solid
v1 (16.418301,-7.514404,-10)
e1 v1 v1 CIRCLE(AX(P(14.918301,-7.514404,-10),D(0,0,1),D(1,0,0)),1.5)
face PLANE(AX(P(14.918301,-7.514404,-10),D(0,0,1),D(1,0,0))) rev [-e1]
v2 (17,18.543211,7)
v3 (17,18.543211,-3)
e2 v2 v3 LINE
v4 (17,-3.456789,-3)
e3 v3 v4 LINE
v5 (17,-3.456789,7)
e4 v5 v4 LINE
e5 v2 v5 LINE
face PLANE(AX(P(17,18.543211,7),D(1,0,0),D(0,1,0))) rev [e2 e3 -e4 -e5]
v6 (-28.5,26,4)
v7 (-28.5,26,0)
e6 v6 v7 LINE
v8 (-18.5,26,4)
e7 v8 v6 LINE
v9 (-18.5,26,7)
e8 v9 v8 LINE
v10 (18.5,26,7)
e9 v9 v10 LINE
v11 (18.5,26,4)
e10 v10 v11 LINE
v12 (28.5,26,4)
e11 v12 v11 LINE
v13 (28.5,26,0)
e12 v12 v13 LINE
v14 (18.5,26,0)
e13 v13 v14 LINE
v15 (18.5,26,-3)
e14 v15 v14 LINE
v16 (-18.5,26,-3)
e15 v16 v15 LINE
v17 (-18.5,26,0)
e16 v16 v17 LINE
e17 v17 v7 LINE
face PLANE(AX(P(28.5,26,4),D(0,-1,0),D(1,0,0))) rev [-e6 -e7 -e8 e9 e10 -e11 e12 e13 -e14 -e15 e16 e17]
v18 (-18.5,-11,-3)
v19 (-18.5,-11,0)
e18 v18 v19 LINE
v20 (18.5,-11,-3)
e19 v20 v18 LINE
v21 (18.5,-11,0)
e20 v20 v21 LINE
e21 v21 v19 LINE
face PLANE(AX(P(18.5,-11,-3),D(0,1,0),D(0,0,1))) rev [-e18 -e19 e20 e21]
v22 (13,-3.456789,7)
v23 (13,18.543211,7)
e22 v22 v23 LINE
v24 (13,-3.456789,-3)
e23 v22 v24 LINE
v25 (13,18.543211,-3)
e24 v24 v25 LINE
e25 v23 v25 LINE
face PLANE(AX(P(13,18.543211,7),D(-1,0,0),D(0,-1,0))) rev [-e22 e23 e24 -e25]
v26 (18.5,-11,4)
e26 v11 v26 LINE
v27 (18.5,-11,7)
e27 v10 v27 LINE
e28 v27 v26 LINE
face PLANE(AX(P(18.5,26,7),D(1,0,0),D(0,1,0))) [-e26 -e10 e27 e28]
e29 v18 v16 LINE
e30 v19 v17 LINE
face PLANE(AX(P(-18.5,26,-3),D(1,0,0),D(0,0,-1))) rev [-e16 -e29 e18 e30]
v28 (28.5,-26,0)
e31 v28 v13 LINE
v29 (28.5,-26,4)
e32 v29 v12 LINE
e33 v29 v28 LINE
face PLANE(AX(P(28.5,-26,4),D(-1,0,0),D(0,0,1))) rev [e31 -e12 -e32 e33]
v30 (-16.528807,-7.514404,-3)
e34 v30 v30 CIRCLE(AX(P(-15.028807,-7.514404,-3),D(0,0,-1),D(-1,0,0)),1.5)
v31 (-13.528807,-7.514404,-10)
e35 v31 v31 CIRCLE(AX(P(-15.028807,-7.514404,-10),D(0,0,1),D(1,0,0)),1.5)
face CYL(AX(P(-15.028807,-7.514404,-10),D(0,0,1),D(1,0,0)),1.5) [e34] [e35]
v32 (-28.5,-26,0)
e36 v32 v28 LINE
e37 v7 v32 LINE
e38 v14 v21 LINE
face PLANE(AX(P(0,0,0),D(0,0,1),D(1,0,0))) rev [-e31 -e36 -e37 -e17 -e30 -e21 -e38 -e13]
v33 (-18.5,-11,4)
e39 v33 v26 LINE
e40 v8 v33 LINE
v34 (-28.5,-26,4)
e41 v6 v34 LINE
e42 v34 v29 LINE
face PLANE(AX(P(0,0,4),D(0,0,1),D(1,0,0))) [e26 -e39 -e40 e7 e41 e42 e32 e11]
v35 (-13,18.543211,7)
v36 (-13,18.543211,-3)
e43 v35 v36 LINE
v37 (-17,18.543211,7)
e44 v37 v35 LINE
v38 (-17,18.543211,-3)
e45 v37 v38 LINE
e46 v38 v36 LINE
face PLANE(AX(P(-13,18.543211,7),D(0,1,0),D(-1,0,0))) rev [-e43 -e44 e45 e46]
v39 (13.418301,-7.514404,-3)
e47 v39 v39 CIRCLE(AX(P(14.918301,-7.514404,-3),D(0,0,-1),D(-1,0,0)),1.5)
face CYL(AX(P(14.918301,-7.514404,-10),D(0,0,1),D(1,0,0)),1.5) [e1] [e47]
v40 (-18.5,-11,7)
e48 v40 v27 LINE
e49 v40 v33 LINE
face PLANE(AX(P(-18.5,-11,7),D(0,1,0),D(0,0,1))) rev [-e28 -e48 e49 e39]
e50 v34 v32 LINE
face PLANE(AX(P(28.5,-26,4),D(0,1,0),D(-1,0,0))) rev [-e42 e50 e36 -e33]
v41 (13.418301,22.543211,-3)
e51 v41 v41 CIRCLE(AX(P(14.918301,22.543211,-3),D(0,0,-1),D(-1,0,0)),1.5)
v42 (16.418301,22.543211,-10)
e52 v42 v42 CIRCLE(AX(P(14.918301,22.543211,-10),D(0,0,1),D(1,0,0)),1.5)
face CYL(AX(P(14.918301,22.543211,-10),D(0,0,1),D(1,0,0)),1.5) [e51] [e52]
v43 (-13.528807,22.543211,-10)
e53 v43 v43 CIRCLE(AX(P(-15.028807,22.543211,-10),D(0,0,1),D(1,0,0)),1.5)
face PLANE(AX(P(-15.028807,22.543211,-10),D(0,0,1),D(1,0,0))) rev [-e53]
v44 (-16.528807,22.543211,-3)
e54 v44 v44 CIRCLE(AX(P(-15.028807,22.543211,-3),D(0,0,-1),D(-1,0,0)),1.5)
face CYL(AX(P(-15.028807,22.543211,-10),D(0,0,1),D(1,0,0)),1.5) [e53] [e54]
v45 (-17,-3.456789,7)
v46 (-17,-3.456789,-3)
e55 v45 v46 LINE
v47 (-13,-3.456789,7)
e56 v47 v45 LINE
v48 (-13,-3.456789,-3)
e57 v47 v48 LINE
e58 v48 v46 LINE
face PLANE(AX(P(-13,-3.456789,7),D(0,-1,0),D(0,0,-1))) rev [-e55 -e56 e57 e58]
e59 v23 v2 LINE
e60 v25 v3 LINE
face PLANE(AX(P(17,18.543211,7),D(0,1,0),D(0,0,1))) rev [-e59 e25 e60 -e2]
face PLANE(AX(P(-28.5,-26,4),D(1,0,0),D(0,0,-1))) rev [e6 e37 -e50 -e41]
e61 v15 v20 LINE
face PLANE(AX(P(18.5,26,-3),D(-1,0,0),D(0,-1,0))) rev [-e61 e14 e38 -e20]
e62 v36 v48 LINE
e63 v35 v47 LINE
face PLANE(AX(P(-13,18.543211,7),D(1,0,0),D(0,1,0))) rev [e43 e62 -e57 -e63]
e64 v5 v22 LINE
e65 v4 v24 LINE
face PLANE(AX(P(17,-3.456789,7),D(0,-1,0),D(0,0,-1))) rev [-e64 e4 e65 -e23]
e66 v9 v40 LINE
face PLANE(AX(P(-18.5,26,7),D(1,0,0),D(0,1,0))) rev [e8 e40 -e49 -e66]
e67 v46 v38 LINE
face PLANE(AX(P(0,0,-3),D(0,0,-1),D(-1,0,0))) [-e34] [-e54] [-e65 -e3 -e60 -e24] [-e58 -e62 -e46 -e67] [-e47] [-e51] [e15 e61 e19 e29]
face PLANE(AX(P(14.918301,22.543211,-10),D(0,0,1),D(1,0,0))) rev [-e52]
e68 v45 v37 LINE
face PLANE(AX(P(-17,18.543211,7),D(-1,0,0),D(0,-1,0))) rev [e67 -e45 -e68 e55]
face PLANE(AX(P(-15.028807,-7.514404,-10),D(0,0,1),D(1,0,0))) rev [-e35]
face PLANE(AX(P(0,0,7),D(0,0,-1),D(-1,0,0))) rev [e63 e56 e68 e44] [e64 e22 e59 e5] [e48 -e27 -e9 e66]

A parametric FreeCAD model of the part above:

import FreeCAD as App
import Part
import Sketcher
Q = App.Units.Quantity


def add_polygon(sketch, points):
    """Adds a closed chain of lines whose ends are joined by coincident constraints."""
    first, n = sketch.GeometryCount, len(points)
    for a, b in zip(points, points[1:] + points[:1]):
        sketch.addGeometry(Part.LineSegment(App.Vector(*a, 0), App.Vector(*b, 0)), False)
    for i in range(n):
        sketch.addConstraint(Sketcher.Constraint("Coincident", first + i, 2, first + (i + 1) % n, 1))

doc = App.newDocument("Part")
params = doc.addObject("Spreadsheet::Sheet", "Params")
for row, (alias, value) in enumerate([
    ("sketch1_width", "57 mm"),
    ("sketch1_height", "52 mm"),
    ("pad1_length", "4 mm"),
    ("sketch2_width", "37 mm"),
    ("pad2_length", "3 mm"),
    ("sketch3_width", "37 mm"),
    ("pad3_length", "3 mm"),
    ("sketch4_diameter", "3 mm"),
    ("pad4_length", "10 mm"),
    ("sketch5_diameter", "3 mm"),
    ("pad5_length", "10 mm"),
    ("sketch6_width", "4 mm"),
    ("sketch6_height", "22 mm"),
], start=1):
    params.set(f"A{row}", alias)
    params.set(f"B{row}", "=" + value)
    params.setAlias(f"B{row}", alias)

body = doc.addObject("PartDesign::Body", "Body")

# Sketch on XY plane
sketch1 = body.newObject("Sketcher::SketchObject", "Sketch")
sketch1.AttachmentSupport = (doc.getObject("XY_Plane"), [""])
sketch1.MapMode = "FlatFace"
add_polygon(sketch1, [(-28, 26), (-28, -26), (28, -26), (28, 26)])  # lines 0-3
sketch1.addConstraint(Sketcher.Constraint("Vertical", 0))
sketch1.addConstraint(Sketcher.Constraint("Horizontal", 1))
sketch1.addConstraint(Sketcher.Constraint("Vertical", 2))
sketch1.addConstraint(Sketcher.Constraint("Horizontal", 3))
sketch1.addConstraint(Sketcher.Constraint("Symmetric", 0, 2, 2, 2, -1, 1))
sketch1.addConstraint(Sketcher.Constraint("DistanceX", 1, 1, 1, 2, Q("57 mm")))
sketch1.addConstraint(Sketcher.Constraint("DistanceY", 0, 2, 0, 1, Q("52 mm")))
sketch1.setExpression("Constraints[9]", "Params.sketch1_width")
sketch1.setExpression("Constraints[10]", "Params.sketch1_height")
pad1 = body.newObject("PartDesign::Pad", "Pad")
pad1.Profile = sketch1
pad1.setExpression("Length", "Params.pad1_length")

# Sketch on XY plane
sketch2 = body.newObject("Sketcher::SketchObject", "Sketch001")
sketch2.AttachmentSupport = (doc.getObject("XY_Plane"), [""])
sketch2.MapMode = "FlatFace"
sketch2.AttachmentOffset = App.Placement(App.Vector(0, 0, 4), App.Rotation())
add_polygon(sketch2, [(-18, 26), (-18, -11), (18, -11), (18, 26)])  # lines 0-3
sketch2.addConstraint(Sketcher.Constraint("Vertical", 0))
sketch2.addConstraint(Sketcher.Constraint("Horizontal", 1))
sketch2.addConstraint(Sketcher.Constraint("Vertical", 2))
sketch2.addConstraint(Sketcher.Constraint("Horizontal", 3))
sketch2.addConstraint(Sketcher.Constraint("Equal", 3, 0))
sketch2.addConstraint(Sketcher.Constraint("DistanceX", 1, 1, 1, 2, Q("37 mm")))
sketch2.addConstraint(Sketcher.Constraint("DistanceY", 0, 2, -1, 1, Q("11 mm")))
sketch2.addConstraint(Sketcher.Constraint("DistanceX", 0, 2, -1, 1, Q("18.5 mm")))
sketch2.setExpression("Constraints[9]", "Params.sketch2_width")
pad2 = body.newObject("PartDesign::Pad", "Pad001")
pad2.Profile = sketch2
pad2.setExpression("Length", "Params.pad2_length")

# Sketch on XY plane
sketch3 = body.newObject("Sketcher::SketchObject", "Sketch002")
sketch3.AttachmentSupport = (doc.getObject("XY_Plane"), [""])
sketch3.MapMode = "FlatFace"
add_polygon(sketch3, [(18, 26), (18, -11), (-18, -11), (-18, 26)])  # lines 0-3
sketch3.addConstraint(Sketcher.Constraint("Vertical", 0))
sketch3.addConstraint(Sketcher.Constraint("Horizontal", 1))
sketch3.addConstraint(Sketcher.Constraint("Vertical", 2))
sketch3.addConstraint(Sketcher.Constraint("Horizontal", 3))
sketch3.addConstraint(Sketcher.Constraint("Equal", 3, 0))
sketch3.addConstraint(Sketcher.Constraint("DistanceX", 1, 2, 1, 1, Q("37 mm")))
sketch3.addConstraint(Sketcher.Constraint("DistanceY", 0, 2, -1, 1, Q("11 mm")))
sketch3.addConstraint(Sketcher.Constraint("DistanceX", -1, 1, 0, 2, Q("18.5 mm")))
sketch3.setExpression("Constraints[9]", "Params.sketch3_width")
pad3 = body.newObject("PartDesign::Pad", "Pad002")
pad3.Profile = sketch3
pad3.setExpression("Length", "Params.pad3_length")
pad3.Reversed = True

# Sketch on XY plane
sketch4 = body.newObject("Sketcher::SketchObject", "Sketch003")
sketch4.AttachmentSupport = (doc.getObject("XY_Plane"), [""])
sketch4.MapMode = "FlatFace"
sketch4.addGeometry(Part.Circle(App.Vector(14.9, 22.5, 0), App.Vector(0, 0, 1), 1.5), False)
sketch4.addGeometry(Part.Circle(App.Vector(14.9, -7.5, 0), App.Vector(0, 0, 1), 1.5), False)
sketch4.addConstraint(Sketcher.Constraint("Equal", 0, 1))
sketch4.addConstraint(Sketcher.Constraint("Vertical", 0, 3, 1, 3))
sketch4.addConstraint(Sketcher.Constraint("Diameter", 0, Q("3 mm")))
sketch4.addConstraint(Sketcher.Constraint("DistanceX", -1, 1, 0, 3, Q("14.918301 mm")))
sketch4.addConstraint(Sketcher.Constraint("DistanceY", -1, 1, 0, 3, Q("22.543211 mm")))
sketch4.addConstraint(Sketcher.Constraint("DistanceY", 1, 3, -1, 1, Q("7.514404 mm")))
sketch4.setExpression("Constraints[2]", "Params.sketch4_diameter")
pad4 = body.newObject("PartDesign::Pad", "Pad003")
pad4.Profile = sketch4
pad4.setExpression("Length", "Params.pad4_length")
pad4.Reversed = True

# Sketch on XY plane
sketch5 = body.newObject("Sketcher::SketchObject", "Sketch004")
sketch5.AttachmentSupport = (doc.getObject("XY_Plane"), [""])
sketch5.MapMode = "FlatFace"
sketch5.addGeometry(Part.Circle(App.Vector(-15, 22.5, 0), App.Vector(0, 0, 1), 1.5), False)
sketch5.addGeometry(Part.Circle(App.Vector(14.9, 22.5, 0), App.Vector(0, 0, 1), 1.5), False)
sketch5.addGeometry(Part.Circle(App.Vector(-15, -7.5, 0), App.Vector(0, 0, 1), 1.5), False)
sketch5.addGeometry(Part.Circle(App.Vector(14.9, -7.5, 0), App.Vector(0, 0, 1), 1.5), False)
sketch5.addConstraint(Sketcher.Constraint("Equal", 0, 1))
sketch5.addConstraint(Sketcher.Constraint("Equal", 1, 2))
sketch5.addConstraint(Sketcher.Constraint("Equal", 2, 3))
sketch5.addConstraint(Sketcher.Constraint("Horizontal", 0, 3, 1, 3))
sketch5.addConstraint(Sketcher.Constraint("Horizontal", 2, 3, 3, 3))
sketch5.addConstraint(Sketcher.Constraint("Vertical", 0, 3, 2, 3))
sketch5.addConstraint(Sketcher.Constraint("Vertical", 1, 3, 3, 3))
sketch5.addConstraint(Sketcher.Constraint("Diameter", 0, Q("3 mm")))
sketch5.addConstraint(Sketcher.Constraint("DistanceX", -1, 1, 1, 3, Q("14.918301 mm")))
sketch5.addConstraint(Sketcher.Constraint("DistanceY", -1, 1, 0, 3, Q("22.543211 mm")))
sketch5.addConstraint(Sketcher.Constraint("DistanceX", 0, 3, 1, 3, Q("29.947109 mm")))
sketch5.addConstraint(Sketcher.Constraint("DistanceY", 2, 3, -1, 1, Q("7.514404 mm")))
sketch5.setExpression("Constraints[7]", "Params.sketch5_diameter")
pad5 = body.newObject("PartDesign::Pad", "Pad004")
pad5.Profile = sketch5
pad5.setExpression("Length", "Params.pad5_length")
pad5.Reversed = True

# Sketch on XY plane
sketch6 = body.newObject("Sketcher::SketchObject", "Sketch005")
sketch6.AttachmentSupport = (doc.getObject("XY_Plane"), [""])
sketch6.MapMode = "FlatFace"
sketch6.AttachmentOffset = App.Placement(App.Vector(0, 0, -3), App.Rotation())
add_polygon(sketch6, [(17, 18.5), (17, -3.5), (13, -3.5), (13, 18.5)])  # lines 0-3
add_polygon(sketch6, [(-13, 18.5), (-13, -3.5), (-17, -3.5), (-17, 18.5)])  # lines 4-7
sketch6.addConstraint(Sketcher.Constraint("Vertical", 0))
sketch6.addConstraint(Sketcher.Constraint("Horizontal", 1))
sketch6.addConstraint(Sketcher.Constraint("Vertical", 2))
sketch6.addConstraint(Sketcher.Constraint("Horizontal", 3))
sketch6.addConstraint(Sketcher.Constraint("Vertical", 4))
sketch6.addConstraint(Sketcher.Constraint("Horizontal", 5))
sketch6.addConstraint(Sketcher.Constraint("Vertical", 6))
sketch6.addConstraint(Sketcher.Constraint("Horizontal", 7))
sketch6.addConstraint(Sketcher.Constraint("Symmetric", 1, 2, 4, 2, -2))
sketch6.addConstraint(Sketcher.Constraint("Symmetric", 3, 2, 6, 2, -2))
sketch6.addConstraint(Sketcher.Constraint("DistanceX", 1, 2, 1, 1, Q("4 mm")))
sketch6.addConstraint(Sketcher.Constraint("DistanceY", 0, 2, 0, 1, Q("22 mm")))
sketch6.addConstraint(Sketcher.Constraint("DistanceX", -1, 1, 0, 2, Q("17 mm")))
sketch6.addConstraint(Sketcher.Constraint("DistanceY", 0, 2, -1, 1, Q("3.456789 mm")))
sketch6.setExpression("Constraints[18]", "Params.sketch6_width")
sketch6.setExpression("Constraints[19]", "Params.sketch6_height")
pocket1 = body.newObject("PartDesign::Pocket", "Pocket")
pocket1.Profile = sketch6
pocket1.Type = "ThroughAll"
pocket1.Reversed = True

doc.recompute()
